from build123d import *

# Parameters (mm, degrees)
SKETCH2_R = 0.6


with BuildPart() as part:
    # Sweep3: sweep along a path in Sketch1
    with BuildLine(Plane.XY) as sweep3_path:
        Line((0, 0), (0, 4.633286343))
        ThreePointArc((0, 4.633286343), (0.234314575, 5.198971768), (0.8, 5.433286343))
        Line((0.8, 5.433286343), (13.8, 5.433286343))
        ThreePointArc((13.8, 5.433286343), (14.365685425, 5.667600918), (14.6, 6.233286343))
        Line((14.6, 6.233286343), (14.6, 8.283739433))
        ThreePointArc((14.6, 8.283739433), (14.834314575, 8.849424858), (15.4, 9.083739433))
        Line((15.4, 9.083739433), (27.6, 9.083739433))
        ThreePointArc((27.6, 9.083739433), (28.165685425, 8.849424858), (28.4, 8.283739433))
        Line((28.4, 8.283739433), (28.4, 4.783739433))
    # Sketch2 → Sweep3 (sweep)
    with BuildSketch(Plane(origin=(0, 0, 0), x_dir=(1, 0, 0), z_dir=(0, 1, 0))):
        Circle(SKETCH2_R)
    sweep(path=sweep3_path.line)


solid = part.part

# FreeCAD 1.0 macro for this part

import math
import FreeCAD as App
import Part
import Sketcher
from FreeCAD import Vector
Q = App.Units.Quantity

doc = App.newDocument("Part")
body = doc.addObject("PartDesign::Body", "Body")

sketch1 = body.newObject("Sketcher::SketchObject", "Sketch")
sketch1.AttachmentSupport = (doc.getObject("XZ_Plane"), [""])
sketch1.MapMode = "FlatFace"
sketch1.addGeometry(Part.Circle(Vector(0, 0, 0), Vector(0, 0, 1), 0.6), False)
sketch1.addConstraint(Sketcher.Constraint("Coincident", 0, 3, -1, 1))
sketch1.addConstraint(Sketcher.Constraint("Diameter", 0, Q("1.2 mm")))

sketch2 = body.newObject("Sketcher::SketchObject", "Sketch001")
sketch2.AttachmentSupport = (doc.getObject("XY_Plane"), [""])
sketch2.MapMode = "FlatFace"
sketch2.addGeometry(Part.LineSegment(Vector(0, 0, 0), Vector(0, 4.6, 0)), False)
sketch2.addGeometry(Part.ArcOfCircle(Part.Circle(Vector(0.8, 4.6, 0), Vector(0, 0, 1), 0.8), math.radians(90), math.radians(180)), False)
sketch2.addGeometry(Part.LineSegment(Vector(0.8, 5.4, 0), Vector(13.8, 5.4, 0)), False)
sketch2.addGeometry(Part.ArcOfCircle(Part.Circle(Vector(13.8, 6.2, 0), Vector(0, 0, 1), 0.8), math.radians(-90), math.radians(0)), False)
sketch2.addGeometry(Part.LineSegment(Vector(14.6, 6.2, 0), Vector(14.6, 8.3, 0)), False)
sketch2.addGeometry(Part.ArcOfCircle(Part.Circle(Vector(15.4, 8.3, 0), Vector(0, 0, 1), 0.8), math.radians(90), math.radians(180)), False)
sketch2.addGeometry(Part.LineSegment(Vector(15.4, 9.1, 0), Vector(27.6, 9.1, 0)), False)
sketch2.addGeometry(Part.ArcOfCircle(Part.Circle(Vector(27.6, 8.3, 0), Vector(0, 0, 1), 0.8), math.radians(0), math.radians(90)), False)
sketch2.addGeometry(Part.LineSegment(Vector(28.4, 8.3, 0), Vector(28.4, 4.8, 0)), False)
sketch2.addConstraint(Sketcher.Constraint("Tangent", 0, 2, 1, 2))
sketch2.addConstraint(Sketcher.Constraint("Tangent", 1, 1, 2, 1))
sketch2.addConstraint(Sketcher.Constraint("Tangent", 2, 2, 3, 1))
sketch2.addConstraint(Sketcher.Constraint("Tangent", 3, 2, 4, 1))
sketch2.addConstraint(Sketcher.Constraint("Tangent", 4, 2, 5, 2))
sketch2.addConstraint(Sketcher.Constraint("Tangent", 5, 1, 6, 1))
sketch2.addConstraint(Sketcher.Constraint("Tangent", 6, 2, 7, 2))
sketch2.addConstraint(Sketcher.Constraint("Tangent", 7, 1, 8, 1))
sketch2.addConstraint(Sketcher.Constraint("Vertical", 0))
sketch2.addConstraint(Sketcher.Constraint("Horizontal", 2))
sketch2.addConstraint(Sketcher.Constraint("Vertical", 4))
sketch2.addConstraint(Sketcher.Constraint("Horizontal", 6))
sketch2.addConstraint(Sketcher.Constraint("Vertical", 8))
sketch2.addConstraint(Sketcher.Constraint("Coincident", 0, 1, -1, 1))
sketch2.addConstraint(Sketcher.Constraint("Equal", 1, 3))
sketch2.addConstraint(Sketcher.Constraint("Equal", 3, 5))
sketch2.addConstraint(Sketcher.Constraint("Equal", 5, 7))
sketch2.addConstraint(Sketcher.Constraint("Radius", 1, Q("0.8 mm")))
sketch2.addConstraint(Sketcher.Constraint("DistanceX", 2, 1, 2, 2, Q("13 mm")))
sketch2.addConstraint(Sketcher.Constraint("DistanceX", 6, 1, 6, 2, Q("12.2 mm")))
sketch2.addConstraint(Sketcher.Constraint("DistanceY", 8, 2, 8, 1, Q("3.5 mm")))
sketch2.addConstraint(Sketcher.Constraint("DistanceY", 0, 1, 0, 2, Q("4.633286 mm")))
sketch2.addConstraint(Sketcher.Constraint("DistanceY", 4, 1, 4, 2, Q("2.050453 mm")))
doc.recompute()

additivepipe = body.newObject("PartDesign::AdditivePipe", "AdditivePipe")
additivepipe.Profile = sketch1
additivepipe.Spine = (sketch2, ["Edge1", "Edge2", "Edge3", "Edge4", "Edge5", "Edge6", "Edge7", "Edge8", "Edge9"])

doc.recompute()
